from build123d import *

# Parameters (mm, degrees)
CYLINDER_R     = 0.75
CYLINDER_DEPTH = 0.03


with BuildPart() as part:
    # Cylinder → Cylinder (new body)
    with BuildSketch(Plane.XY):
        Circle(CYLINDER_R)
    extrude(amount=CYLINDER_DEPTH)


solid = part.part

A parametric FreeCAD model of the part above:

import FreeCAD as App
import Part
import Sketcher

V = App.Vector
Q = App.Units.Quantity

doc = App.newDocument("Part")
body = doc.addObject("PartDesign::Body", "Body")

# Sketch on XY plane
sketch1 = body.newObject("Sketcher::SketchObject", "Sketch")
sketch1.AttachmentSupport = (doc.getObject("XY_Plane"), [""])
sketch1.MapMode = "FlatFace"
sketch1.addGeometry(Part.Circle(V(0, 0, 0), V(0, 0, 1), 0.8), False)
sketch1.addConstraint([
    Sketcher.Constraint("Coincident", 0, 3, -1, 1),
    Sketcher.Constraint("Diameter", 0, Q("1.5 mm")),
])
pad1 = body.newObject("PartDesign::Pad", "Pad")
pad1.Profile = sketch1
pad1.Length = 0.03

doc.recompute()
